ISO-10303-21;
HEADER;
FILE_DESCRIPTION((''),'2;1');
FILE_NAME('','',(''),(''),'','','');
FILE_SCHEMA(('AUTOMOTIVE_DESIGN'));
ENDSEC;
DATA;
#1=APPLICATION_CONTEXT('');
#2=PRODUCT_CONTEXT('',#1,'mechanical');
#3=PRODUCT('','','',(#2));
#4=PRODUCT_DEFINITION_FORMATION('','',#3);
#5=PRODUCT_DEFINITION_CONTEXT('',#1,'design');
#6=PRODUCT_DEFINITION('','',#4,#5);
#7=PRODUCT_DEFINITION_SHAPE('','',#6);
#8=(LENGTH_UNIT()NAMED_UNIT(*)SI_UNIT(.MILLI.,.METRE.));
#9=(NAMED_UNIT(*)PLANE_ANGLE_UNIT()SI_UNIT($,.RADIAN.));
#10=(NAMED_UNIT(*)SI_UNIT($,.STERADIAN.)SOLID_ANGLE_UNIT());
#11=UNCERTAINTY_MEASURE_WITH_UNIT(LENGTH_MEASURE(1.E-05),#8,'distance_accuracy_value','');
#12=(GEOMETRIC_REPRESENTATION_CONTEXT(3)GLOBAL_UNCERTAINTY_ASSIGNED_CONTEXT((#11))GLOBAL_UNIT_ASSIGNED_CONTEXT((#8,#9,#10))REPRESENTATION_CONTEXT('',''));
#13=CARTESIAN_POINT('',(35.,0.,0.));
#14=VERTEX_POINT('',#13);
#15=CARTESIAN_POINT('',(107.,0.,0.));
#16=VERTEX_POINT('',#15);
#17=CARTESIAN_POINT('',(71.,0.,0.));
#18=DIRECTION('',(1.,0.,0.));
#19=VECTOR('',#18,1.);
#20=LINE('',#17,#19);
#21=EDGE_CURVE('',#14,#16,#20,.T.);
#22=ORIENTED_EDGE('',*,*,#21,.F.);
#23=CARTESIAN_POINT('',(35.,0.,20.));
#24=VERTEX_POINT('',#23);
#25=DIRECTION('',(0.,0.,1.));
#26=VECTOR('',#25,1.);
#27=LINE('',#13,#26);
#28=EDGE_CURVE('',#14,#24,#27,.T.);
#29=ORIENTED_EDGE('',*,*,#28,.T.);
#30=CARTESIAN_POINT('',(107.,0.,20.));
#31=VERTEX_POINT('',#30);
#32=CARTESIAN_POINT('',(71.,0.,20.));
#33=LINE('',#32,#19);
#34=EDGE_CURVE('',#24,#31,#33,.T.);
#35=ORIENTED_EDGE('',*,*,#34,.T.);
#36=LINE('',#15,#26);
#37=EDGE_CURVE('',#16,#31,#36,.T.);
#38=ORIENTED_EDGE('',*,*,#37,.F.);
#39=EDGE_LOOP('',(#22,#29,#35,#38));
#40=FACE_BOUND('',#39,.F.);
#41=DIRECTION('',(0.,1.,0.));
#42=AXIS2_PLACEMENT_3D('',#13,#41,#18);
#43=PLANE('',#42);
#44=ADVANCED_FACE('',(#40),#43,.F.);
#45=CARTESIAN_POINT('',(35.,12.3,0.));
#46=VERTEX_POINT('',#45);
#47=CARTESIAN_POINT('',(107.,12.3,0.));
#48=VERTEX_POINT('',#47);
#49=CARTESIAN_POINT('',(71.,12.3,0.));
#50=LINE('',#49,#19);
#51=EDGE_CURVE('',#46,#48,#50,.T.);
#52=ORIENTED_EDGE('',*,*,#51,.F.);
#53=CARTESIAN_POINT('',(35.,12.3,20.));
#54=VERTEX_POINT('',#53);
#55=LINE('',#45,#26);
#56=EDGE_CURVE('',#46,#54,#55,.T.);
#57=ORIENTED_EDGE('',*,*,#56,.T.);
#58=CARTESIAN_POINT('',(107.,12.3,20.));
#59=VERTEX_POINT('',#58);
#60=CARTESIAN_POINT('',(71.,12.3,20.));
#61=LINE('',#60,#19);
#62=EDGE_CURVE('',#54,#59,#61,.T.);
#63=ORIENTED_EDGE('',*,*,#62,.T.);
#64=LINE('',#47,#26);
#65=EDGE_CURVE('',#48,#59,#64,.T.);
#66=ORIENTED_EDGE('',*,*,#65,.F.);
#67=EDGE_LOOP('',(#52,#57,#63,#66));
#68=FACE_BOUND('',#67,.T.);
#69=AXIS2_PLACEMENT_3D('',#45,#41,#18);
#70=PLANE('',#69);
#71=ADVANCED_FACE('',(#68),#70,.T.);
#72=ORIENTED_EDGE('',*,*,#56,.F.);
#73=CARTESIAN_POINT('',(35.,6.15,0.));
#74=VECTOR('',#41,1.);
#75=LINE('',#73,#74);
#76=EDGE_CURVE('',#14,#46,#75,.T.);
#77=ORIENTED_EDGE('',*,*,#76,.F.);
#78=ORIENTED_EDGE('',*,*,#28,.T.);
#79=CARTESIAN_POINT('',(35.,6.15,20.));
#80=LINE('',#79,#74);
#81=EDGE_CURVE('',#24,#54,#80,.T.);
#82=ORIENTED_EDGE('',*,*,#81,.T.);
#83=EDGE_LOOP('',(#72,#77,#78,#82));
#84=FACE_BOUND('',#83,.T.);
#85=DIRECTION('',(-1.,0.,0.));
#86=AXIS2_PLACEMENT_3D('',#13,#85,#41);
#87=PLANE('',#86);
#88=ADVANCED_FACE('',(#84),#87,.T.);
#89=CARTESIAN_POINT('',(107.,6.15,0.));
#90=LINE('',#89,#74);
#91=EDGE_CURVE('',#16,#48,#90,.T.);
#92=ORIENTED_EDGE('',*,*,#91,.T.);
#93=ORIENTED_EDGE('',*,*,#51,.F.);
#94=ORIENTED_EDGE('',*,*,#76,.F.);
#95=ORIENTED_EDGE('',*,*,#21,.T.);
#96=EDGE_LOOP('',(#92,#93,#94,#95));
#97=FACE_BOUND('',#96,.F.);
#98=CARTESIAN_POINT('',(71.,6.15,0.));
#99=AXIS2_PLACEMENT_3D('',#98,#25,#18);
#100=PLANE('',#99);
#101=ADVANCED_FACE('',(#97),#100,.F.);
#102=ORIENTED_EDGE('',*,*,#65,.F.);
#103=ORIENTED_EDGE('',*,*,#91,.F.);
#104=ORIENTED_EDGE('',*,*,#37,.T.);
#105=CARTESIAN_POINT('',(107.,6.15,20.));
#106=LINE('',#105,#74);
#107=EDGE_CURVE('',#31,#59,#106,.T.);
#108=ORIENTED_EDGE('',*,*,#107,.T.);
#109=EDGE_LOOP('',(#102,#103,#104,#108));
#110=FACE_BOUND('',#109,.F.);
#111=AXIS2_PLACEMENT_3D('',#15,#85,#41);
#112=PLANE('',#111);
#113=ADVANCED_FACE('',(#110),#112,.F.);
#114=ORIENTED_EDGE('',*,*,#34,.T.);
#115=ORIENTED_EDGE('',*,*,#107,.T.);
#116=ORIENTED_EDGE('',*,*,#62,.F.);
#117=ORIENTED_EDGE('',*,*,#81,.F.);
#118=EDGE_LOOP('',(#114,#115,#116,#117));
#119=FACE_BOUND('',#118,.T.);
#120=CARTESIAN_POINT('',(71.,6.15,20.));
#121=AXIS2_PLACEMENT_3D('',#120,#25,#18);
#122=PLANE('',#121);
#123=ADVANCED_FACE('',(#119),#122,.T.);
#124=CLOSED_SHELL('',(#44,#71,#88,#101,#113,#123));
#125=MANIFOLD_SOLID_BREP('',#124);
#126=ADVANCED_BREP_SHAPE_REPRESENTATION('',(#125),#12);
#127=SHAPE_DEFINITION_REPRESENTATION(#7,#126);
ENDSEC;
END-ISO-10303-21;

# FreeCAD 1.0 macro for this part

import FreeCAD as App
import Part
import Sketcher

V = App.Vector
Q = App.Units.Quantity

doc = App.newDocument("Part")
params = doc.addObject("Spreadsheet::Sheet", "Params")
for row, (alias, value) in enumerate([
    ("sketch1_width", "72 mm"),
    ("sketch1_height", "12.3 mm"),
    ("pad1_length", "20 mm"),
], start=1):
    params.set(f"A{row}", alias)
    params.set(f"B{row}", "=" + value)
    params.setAlias(f"B{row}", alias)

body = doc.addObject("PartDesign::Body", "Body")

# Sketch on XY plane
sketch1 = body.newObject("Sketcher::SketchObject", "Sketch")
sketch1.AttachmentSupport = (doc.getObject("XY_Plane"), [""])
sketch1.MapMode = "FlatFace"
sketch1.addGeometry(Part.LineSegment(V(35, 12, 0), V(35, 0, 0)), False)
sketch1.addGeometry(Part.LineSegment(V(35, 0, 0), V(107, 0, 0)), False)
sketch1.addGeometry(Part.LineSegment(V(107, 0, 0), V(107, 12, 0)), False)
sketch1.addGeometry(Part.LineSegment(V(107, 12, 0), V(35, 12, 0)), False)
sketch1.addConstraint(Sketcher.Constraint("Coincident", 0, 2, 1, 1))
sketch1.addConstraint(Sketcher.Constraint("Coincident", 1, 2, 2, 1))
sketch1.addConstraint(Sketcher.Constraint("Coincident", 2, 2, 3, 1))
sketch1.addConstraint(Sketcher.Constraint("Coincident", 3, 2, 0, 1))
sketch1.addConstraint(Sketcher.Constraint("Vertical", 0))
sketch1.addConstraint(Sketcher.Constraint("Horizontal", 1))
sketch1.addConstraint(Sketcher.Constraint("Vertical", 2))
sketch1.addConstraint(Sketcher.Constraint("Horizontal", 3))
sketch1.addConstraint(Sketcher.Constraint("PointOnObject", 0, 2, -1))
sketch1.addConstraint(Sketcher.Constraint("DistanceX", 1, 1, 1, 2, Q("72 mm")))
sketch1.addConstraint(Sketcher.Constraint("DistanceY", 0, 2, 0, 1, Q("12.3 mm")))
sketch1.addConstraint(Sketcher.Constraint("DistanceX", -1, 1, 0, 2, Q("35 mm")))
sketch1.setExpression("Constraints[9]", "Params.sketch1_width")
sketch1.setExpression("Constraints[10]", "Params.sketch1_height")
pad1 = body.newObject("PartDesign::Pad", "Pad")
pad1.Profile = sketch1
pad1.setExpression("Length", "Params.pad1_length")

doc.recompute()
